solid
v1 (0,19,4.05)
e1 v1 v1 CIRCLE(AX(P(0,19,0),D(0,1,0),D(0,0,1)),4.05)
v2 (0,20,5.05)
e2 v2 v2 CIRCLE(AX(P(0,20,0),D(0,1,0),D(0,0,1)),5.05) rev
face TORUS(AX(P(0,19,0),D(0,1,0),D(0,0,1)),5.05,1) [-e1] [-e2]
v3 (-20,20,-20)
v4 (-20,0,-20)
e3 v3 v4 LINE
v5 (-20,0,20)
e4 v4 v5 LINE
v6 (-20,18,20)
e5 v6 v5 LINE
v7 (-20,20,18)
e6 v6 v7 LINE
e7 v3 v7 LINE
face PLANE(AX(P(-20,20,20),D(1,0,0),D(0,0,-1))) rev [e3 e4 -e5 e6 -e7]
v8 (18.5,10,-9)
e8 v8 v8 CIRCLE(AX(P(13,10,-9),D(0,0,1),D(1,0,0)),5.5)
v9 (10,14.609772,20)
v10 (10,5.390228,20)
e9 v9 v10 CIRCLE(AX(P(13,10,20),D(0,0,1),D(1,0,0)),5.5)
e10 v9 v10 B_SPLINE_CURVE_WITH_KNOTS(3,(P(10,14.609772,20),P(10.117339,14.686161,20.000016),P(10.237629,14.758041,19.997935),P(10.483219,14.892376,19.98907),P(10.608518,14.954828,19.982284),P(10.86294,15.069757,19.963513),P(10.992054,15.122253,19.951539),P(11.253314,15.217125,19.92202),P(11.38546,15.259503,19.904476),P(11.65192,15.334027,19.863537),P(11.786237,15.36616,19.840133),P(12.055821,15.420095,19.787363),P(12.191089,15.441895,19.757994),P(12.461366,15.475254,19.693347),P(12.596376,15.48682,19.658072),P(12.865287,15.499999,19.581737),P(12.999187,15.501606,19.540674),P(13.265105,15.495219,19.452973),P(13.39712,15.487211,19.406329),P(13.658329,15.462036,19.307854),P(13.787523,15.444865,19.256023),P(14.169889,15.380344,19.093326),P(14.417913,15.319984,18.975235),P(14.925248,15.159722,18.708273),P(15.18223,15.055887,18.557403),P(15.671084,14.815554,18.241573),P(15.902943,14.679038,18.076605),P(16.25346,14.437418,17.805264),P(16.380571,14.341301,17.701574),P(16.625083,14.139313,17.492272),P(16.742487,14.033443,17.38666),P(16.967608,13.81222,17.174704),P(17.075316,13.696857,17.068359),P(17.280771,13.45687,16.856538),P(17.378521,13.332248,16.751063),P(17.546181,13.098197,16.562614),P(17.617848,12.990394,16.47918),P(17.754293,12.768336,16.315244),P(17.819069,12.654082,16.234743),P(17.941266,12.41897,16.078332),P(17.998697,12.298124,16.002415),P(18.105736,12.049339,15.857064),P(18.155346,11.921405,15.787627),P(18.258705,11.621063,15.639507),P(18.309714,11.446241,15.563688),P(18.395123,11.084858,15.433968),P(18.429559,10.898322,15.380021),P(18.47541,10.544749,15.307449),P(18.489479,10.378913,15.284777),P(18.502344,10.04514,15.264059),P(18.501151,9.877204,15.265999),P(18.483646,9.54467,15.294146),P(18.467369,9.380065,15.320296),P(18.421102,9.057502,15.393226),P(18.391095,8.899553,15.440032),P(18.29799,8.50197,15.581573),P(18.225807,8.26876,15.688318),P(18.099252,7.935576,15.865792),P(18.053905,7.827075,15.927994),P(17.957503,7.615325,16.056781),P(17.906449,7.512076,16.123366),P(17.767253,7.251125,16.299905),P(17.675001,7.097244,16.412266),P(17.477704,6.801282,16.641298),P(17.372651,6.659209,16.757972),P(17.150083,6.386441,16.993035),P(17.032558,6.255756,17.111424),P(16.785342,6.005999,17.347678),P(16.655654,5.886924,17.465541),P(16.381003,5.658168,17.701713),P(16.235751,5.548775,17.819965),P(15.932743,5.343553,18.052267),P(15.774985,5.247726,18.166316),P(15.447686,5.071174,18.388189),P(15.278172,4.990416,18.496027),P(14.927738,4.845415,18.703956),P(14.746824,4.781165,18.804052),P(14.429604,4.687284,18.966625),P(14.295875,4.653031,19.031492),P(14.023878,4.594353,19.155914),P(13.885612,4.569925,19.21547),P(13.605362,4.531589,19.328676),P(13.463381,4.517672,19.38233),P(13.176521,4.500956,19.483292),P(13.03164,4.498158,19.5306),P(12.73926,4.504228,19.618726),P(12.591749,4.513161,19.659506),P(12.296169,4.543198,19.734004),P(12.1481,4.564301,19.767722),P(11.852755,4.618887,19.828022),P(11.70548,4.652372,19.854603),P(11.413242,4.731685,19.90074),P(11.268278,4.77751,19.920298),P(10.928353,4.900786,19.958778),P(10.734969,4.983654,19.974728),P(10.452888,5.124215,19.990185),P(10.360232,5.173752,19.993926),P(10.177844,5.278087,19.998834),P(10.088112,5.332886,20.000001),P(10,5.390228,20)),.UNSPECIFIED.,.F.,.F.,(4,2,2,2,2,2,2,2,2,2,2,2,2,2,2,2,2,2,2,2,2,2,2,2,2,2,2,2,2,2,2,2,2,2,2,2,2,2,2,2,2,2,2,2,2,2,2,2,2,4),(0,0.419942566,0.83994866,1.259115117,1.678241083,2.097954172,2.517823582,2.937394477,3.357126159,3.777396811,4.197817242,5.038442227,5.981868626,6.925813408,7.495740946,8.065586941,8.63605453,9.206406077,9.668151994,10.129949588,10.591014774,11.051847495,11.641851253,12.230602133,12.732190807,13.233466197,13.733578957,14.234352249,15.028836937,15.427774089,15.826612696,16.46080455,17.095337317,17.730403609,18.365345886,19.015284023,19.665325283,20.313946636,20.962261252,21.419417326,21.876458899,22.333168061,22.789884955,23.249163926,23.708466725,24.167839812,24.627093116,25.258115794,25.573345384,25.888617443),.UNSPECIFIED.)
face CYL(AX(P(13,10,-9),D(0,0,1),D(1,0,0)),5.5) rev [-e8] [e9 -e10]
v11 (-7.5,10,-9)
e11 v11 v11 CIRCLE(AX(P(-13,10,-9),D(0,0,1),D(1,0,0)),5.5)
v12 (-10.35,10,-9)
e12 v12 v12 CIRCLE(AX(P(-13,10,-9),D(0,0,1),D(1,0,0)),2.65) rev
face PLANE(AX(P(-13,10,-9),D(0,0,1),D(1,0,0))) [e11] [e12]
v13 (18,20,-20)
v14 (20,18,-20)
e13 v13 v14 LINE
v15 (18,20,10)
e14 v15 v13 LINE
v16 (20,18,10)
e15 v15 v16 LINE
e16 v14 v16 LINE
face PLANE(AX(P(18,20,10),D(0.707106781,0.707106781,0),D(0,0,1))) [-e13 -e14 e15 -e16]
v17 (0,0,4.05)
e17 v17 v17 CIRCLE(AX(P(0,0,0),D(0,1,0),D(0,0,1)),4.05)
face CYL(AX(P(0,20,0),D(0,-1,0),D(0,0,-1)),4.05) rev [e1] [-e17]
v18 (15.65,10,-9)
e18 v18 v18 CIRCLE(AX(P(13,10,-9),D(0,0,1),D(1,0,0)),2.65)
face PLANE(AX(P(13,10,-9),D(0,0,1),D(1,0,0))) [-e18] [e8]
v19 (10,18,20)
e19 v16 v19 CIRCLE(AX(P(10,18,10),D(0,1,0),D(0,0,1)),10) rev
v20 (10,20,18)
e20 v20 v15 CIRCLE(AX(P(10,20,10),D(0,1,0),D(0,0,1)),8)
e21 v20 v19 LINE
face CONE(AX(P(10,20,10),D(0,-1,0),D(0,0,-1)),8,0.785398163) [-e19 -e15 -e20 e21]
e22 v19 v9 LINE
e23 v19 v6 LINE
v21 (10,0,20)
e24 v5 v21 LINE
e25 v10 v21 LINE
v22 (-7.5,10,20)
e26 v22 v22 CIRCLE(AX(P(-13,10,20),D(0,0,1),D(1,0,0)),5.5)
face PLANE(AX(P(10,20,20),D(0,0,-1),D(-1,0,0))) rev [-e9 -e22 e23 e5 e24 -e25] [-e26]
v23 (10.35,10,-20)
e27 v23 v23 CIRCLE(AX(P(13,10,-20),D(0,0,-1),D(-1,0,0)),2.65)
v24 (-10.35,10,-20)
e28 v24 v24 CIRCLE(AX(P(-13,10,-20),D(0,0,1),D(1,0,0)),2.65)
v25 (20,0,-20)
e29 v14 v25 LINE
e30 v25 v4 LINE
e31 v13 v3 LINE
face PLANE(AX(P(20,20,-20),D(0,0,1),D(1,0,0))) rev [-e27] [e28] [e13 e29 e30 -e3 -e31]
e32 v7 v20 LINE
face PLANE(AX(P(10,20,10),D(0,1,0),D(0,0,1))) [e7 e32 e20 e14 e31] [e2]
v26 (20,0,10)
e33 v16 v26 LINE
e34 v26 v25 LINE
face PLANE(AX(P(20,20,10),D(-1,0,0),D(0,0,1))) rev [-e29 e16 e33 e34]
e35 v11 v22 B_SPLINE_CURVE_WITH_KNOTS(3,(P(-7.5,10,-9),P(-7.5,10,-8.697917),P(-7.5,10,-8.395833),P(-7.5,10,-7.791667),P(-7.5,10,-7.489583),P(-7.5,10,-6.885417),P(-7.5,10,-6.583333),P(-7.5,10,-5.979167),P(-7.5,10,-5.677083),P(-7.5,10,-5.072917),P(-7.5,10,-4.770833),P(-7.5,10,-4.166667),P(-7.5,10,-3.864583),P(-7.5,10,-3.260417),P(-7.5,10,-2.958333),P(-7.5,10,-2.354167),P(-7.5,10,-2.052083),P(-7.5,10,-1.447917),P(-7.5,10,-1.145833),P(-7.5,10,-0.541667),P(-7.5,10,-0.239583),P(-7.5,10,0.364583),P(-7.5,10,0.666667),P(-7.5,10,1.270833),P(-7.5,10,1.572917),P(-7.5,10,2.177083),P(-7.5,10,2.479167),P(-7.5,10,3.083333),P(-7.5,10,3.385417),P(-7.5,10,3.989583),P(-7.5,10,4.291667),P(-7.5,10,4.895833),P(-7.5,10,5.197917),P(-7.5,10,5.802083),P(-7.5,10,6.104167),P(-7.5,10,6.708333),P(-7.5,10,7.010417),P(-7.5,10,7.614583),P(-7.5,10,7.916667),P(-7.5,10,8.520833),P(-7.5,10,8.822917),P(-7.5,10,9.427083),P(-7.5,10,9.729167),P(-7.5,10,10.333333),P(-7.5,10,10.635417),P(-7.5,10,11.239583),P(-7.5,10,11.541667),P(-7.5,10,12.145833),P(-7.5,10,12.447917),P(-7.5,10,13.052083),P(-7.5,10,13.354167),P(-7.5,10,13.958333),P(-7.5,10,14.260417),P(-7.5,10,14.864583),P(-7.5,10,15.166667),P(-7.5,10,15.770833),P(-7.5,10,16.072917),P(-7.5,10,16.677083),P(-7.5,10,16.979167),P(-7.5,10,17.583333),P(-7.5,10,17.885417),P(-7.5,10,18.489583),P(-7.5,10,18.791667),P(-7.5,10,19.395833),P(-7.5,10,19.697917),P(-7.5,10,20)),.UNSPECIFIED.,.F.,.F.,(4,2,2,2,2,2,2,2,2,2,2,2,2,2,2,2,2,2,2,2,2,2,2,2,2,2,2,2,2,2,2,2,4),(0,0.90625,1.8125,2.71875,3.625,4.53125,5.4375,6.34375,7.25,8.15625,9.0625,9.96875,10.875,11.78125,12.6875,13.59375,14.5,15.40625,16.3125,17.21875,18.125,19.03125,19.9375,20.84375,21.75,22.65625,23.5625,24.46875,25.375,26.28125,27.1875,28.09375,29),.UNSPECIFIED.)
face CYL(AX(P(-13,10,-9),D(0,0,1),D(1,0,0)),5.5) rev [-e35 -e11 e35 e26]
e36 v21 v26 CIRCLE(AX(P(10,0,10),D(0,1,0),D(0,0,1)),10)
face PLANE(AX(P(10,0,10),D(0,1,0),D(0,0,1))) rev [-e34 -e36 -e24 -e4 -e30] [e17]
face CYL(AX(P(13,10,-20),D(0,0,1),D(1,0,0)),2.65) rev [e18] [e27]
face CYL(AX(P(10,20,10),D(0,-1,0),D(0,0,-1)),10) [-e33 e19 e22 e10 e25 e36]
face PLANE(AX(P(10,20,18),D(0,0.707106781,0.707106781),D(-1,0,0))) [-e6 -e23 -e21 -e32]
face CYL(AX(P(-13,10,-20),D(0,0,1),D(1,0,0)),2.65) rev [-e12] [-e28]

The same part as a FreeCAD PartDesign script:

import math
import FreeCAD as App
import Part
import Sketcher

V = App.Vector


def edges_at(feature, points):
    """Names of the edges that pass closest to the given points."""
    edges = feature.Shape.Edges
    near = lambda p: min(range(len(edges)), key=lambda i: edges[i].distToShape(Part.Vertex(*p))[0])
    return sorted({f"Edge{near(p) + 1}" for p in points})

doc = App.newDocument("Part")
body = doc.addObject("PartDesign::Body", "Body")

# Sketch on XZ plane
sketch1 = doc.addObject("Sketcher::SketchObject", "Sketch")
body.addObject(sketch1)
sketch1.AttachmentSupport = (doc.XZ_Plane, [""])
sketch1.MapMode = "FlatFace"
sketch1.addGeometry(Part.LineSegment(V(-20, 20, 0), V(10, 20, 0)), False)
sketch1.addGeometry(Part.ArcOfCircle(Part.Circle(V(10, 10, 0), V(0, 0, 1), 10), math.radians(0), math.radians(90)), False)
sketch1.addGeometry(Part.LineSegment(V(20, 10, 0), V(20, -20, 0)), False)
sketch1.addGeometry(Part.LineSegment(V(20, -20, 0), V(-20, -20, 0)), False)
sketch1.addGeometry(Part.LineSegment(V(-20, -20, 0), V(-20, 20, 0)), False)
sketch1.addGeometry(Part.Circle(V(0, 0, 0), V(0, 0, 1), 4), False)
sketch1.addConstraint(Sketcher.Constraint("Tangent", 0, 2, 1, 2))
sketch1.addConstraint(Sketcher.Constraint("Tangent", 1, 1, 2, 1))
sketch1.addConstraint(Sketcher.Constraint("Coincident", 2, 2, 3, 1))
sketch1.addConstraint(Sketcher.Constraint("Coincident", 3, 2, 4, 1))
sketch1.addConstraint(Sketcher.Constraint("Coincident", 4, 2, 0, 1))
sketch1.addConstraint(Sketcher.Constraint("Horizontal", 0))
sketch1.addConstraint(Sketcher.Constraint("Vertical", 2))
sketch1.addConstraint(Sketcher.Constraint("Horizontal", 3))
sketch1.addConstraint(Sketcher.Constraint("Vertical", 4))
sketch1.addConstraint(Sketcher.Constraint("Coincident", 5, 3, -1, 1))
sketch1.addConstraint(Sketcher.Constraint("Symmetric", 2, 2, 4, 2, -1, 1))
sketch1.addConstraint(Sketcher.Constraint("Equal", 0, 2))
sketch1.addConstraint(Sketcher.Constraint("Radius", 1, 10.0))
sketch1.addConstraint(Sketcher.Constraint("Diameter", 5, 8.1))
sketch1.addConstraint(Sketcher.Constraint("DistanceX", 0, 1, 0, 2, 30.0))
pad1 = doc.addObject("PartDesign::Pad", "Pad")
body.addObject(pad1)
pad1.Profile = sketch1
pad1.Length = 20
pad1.Reversed = True

# Sketch on XY plane
sketch2 = doc.addObject("Sketcher::SketchObject", "Sketch001")
body.addObject(sketch2)
sketch2.AttachmentSupport = (doc.XY_Plane, [""])
sketch2.MapMode = "FlatFace"
sketch2.AttachmentOffset = App.Placement(V(0, 0, 20), App.Rotation())
sketch2.addGeometry(Part.Circle(V(-13, 10, 0), V(0, 0, 1), 2.6), False)
sketch2.addGeometry(Part.Circle(V(13, 10, 0), V(0, 0, 1), 2.6), False)
sketch2.addConstraint(Sketcher.Constraint("Equal", 0, 1))
sketch2.addConstraint(Sketcher.Constraint("Symmetric", 0, 3, 1, 3, -2))
sketch2.addConstraint(Sketcher.Constraint("Diameter", 0, 5.3))
sketch2.addConstraint(Sketcher.Constraint("DistanceX", 0, 3, -1, 1, 13.0))
sketch2.addConstraint(Sketcher.Constraint("DistanceY", -1, 1, 0, 3, 10.0))
pocket1 = doc.addObject("PartDesign::Pocket", "Pocket")
body.addObject(pocket1)
pocket1.Profile = sketch2
pocket1.Length = 40

# Sketch on XY plane
sketch3 = doc.addObject("Sketcher::SketchObject", "Sketch002")
body.addObject(sketch3)
sketch3.AttachmentSupport = (doc.XY_Plane, [""])
sketch3.MapMode = "FlatFace"
sketch3.AttachmentOffset = App.Placement(V(0, 0, 20), App.Rotation())
sketch3.addGeometry(Part.Circle(V(-13, 10, 0), V(0, 0, 1), 6), False)
sketch3.addGeometry(Part.Circle(V(13, 10, 0), V(0, 0, 1), 6), False)
sketch3.addConstraint(Sketcher.Constraint("Equal", 0, 1))
sketch3.addConstraint(Sketcher.Constraint("Symmetric", 0, 3, 1, 3, -2))
sketch3.addConstraint(Sketcher.Constraint("Diameter", 0, 11.0))
sketch3.addConstraint(Sketcher.Constraint("DistanceX", 0, 3, -1, 1, 13.0))
sketch3.addConstraint(Sketcher.Constraint("DistanceY", -1, 1, 0, 3, 10.0))
pocket2 = doc.addObject("PartDesign::Pocket", "Pocket001")
body.addObject(pocket2)
pocket2.Profile = sketch3
pocket2.Length = 29
doc.recompute()

chamfer = doc.addObject("PartDesign::Chamfer", "Chamfer")
body.addObject(chamfer)
chamfer.Base = (pocket2, edges_at(pocket2, [(17.071, 20, 17.071), (20, 20, -5), (-5, 20, 20)]))
chamfer.Size = 2
doc.recompute()

fillet = doc.addObject("PartDesign::Fillet", "Fillet")
body.addObject(fillet)
fillet.Base = (chamfer, edges_at(chamfer, [(0, 20, -4.05)]))
fillet.Radius = 1

doc.recompute()
